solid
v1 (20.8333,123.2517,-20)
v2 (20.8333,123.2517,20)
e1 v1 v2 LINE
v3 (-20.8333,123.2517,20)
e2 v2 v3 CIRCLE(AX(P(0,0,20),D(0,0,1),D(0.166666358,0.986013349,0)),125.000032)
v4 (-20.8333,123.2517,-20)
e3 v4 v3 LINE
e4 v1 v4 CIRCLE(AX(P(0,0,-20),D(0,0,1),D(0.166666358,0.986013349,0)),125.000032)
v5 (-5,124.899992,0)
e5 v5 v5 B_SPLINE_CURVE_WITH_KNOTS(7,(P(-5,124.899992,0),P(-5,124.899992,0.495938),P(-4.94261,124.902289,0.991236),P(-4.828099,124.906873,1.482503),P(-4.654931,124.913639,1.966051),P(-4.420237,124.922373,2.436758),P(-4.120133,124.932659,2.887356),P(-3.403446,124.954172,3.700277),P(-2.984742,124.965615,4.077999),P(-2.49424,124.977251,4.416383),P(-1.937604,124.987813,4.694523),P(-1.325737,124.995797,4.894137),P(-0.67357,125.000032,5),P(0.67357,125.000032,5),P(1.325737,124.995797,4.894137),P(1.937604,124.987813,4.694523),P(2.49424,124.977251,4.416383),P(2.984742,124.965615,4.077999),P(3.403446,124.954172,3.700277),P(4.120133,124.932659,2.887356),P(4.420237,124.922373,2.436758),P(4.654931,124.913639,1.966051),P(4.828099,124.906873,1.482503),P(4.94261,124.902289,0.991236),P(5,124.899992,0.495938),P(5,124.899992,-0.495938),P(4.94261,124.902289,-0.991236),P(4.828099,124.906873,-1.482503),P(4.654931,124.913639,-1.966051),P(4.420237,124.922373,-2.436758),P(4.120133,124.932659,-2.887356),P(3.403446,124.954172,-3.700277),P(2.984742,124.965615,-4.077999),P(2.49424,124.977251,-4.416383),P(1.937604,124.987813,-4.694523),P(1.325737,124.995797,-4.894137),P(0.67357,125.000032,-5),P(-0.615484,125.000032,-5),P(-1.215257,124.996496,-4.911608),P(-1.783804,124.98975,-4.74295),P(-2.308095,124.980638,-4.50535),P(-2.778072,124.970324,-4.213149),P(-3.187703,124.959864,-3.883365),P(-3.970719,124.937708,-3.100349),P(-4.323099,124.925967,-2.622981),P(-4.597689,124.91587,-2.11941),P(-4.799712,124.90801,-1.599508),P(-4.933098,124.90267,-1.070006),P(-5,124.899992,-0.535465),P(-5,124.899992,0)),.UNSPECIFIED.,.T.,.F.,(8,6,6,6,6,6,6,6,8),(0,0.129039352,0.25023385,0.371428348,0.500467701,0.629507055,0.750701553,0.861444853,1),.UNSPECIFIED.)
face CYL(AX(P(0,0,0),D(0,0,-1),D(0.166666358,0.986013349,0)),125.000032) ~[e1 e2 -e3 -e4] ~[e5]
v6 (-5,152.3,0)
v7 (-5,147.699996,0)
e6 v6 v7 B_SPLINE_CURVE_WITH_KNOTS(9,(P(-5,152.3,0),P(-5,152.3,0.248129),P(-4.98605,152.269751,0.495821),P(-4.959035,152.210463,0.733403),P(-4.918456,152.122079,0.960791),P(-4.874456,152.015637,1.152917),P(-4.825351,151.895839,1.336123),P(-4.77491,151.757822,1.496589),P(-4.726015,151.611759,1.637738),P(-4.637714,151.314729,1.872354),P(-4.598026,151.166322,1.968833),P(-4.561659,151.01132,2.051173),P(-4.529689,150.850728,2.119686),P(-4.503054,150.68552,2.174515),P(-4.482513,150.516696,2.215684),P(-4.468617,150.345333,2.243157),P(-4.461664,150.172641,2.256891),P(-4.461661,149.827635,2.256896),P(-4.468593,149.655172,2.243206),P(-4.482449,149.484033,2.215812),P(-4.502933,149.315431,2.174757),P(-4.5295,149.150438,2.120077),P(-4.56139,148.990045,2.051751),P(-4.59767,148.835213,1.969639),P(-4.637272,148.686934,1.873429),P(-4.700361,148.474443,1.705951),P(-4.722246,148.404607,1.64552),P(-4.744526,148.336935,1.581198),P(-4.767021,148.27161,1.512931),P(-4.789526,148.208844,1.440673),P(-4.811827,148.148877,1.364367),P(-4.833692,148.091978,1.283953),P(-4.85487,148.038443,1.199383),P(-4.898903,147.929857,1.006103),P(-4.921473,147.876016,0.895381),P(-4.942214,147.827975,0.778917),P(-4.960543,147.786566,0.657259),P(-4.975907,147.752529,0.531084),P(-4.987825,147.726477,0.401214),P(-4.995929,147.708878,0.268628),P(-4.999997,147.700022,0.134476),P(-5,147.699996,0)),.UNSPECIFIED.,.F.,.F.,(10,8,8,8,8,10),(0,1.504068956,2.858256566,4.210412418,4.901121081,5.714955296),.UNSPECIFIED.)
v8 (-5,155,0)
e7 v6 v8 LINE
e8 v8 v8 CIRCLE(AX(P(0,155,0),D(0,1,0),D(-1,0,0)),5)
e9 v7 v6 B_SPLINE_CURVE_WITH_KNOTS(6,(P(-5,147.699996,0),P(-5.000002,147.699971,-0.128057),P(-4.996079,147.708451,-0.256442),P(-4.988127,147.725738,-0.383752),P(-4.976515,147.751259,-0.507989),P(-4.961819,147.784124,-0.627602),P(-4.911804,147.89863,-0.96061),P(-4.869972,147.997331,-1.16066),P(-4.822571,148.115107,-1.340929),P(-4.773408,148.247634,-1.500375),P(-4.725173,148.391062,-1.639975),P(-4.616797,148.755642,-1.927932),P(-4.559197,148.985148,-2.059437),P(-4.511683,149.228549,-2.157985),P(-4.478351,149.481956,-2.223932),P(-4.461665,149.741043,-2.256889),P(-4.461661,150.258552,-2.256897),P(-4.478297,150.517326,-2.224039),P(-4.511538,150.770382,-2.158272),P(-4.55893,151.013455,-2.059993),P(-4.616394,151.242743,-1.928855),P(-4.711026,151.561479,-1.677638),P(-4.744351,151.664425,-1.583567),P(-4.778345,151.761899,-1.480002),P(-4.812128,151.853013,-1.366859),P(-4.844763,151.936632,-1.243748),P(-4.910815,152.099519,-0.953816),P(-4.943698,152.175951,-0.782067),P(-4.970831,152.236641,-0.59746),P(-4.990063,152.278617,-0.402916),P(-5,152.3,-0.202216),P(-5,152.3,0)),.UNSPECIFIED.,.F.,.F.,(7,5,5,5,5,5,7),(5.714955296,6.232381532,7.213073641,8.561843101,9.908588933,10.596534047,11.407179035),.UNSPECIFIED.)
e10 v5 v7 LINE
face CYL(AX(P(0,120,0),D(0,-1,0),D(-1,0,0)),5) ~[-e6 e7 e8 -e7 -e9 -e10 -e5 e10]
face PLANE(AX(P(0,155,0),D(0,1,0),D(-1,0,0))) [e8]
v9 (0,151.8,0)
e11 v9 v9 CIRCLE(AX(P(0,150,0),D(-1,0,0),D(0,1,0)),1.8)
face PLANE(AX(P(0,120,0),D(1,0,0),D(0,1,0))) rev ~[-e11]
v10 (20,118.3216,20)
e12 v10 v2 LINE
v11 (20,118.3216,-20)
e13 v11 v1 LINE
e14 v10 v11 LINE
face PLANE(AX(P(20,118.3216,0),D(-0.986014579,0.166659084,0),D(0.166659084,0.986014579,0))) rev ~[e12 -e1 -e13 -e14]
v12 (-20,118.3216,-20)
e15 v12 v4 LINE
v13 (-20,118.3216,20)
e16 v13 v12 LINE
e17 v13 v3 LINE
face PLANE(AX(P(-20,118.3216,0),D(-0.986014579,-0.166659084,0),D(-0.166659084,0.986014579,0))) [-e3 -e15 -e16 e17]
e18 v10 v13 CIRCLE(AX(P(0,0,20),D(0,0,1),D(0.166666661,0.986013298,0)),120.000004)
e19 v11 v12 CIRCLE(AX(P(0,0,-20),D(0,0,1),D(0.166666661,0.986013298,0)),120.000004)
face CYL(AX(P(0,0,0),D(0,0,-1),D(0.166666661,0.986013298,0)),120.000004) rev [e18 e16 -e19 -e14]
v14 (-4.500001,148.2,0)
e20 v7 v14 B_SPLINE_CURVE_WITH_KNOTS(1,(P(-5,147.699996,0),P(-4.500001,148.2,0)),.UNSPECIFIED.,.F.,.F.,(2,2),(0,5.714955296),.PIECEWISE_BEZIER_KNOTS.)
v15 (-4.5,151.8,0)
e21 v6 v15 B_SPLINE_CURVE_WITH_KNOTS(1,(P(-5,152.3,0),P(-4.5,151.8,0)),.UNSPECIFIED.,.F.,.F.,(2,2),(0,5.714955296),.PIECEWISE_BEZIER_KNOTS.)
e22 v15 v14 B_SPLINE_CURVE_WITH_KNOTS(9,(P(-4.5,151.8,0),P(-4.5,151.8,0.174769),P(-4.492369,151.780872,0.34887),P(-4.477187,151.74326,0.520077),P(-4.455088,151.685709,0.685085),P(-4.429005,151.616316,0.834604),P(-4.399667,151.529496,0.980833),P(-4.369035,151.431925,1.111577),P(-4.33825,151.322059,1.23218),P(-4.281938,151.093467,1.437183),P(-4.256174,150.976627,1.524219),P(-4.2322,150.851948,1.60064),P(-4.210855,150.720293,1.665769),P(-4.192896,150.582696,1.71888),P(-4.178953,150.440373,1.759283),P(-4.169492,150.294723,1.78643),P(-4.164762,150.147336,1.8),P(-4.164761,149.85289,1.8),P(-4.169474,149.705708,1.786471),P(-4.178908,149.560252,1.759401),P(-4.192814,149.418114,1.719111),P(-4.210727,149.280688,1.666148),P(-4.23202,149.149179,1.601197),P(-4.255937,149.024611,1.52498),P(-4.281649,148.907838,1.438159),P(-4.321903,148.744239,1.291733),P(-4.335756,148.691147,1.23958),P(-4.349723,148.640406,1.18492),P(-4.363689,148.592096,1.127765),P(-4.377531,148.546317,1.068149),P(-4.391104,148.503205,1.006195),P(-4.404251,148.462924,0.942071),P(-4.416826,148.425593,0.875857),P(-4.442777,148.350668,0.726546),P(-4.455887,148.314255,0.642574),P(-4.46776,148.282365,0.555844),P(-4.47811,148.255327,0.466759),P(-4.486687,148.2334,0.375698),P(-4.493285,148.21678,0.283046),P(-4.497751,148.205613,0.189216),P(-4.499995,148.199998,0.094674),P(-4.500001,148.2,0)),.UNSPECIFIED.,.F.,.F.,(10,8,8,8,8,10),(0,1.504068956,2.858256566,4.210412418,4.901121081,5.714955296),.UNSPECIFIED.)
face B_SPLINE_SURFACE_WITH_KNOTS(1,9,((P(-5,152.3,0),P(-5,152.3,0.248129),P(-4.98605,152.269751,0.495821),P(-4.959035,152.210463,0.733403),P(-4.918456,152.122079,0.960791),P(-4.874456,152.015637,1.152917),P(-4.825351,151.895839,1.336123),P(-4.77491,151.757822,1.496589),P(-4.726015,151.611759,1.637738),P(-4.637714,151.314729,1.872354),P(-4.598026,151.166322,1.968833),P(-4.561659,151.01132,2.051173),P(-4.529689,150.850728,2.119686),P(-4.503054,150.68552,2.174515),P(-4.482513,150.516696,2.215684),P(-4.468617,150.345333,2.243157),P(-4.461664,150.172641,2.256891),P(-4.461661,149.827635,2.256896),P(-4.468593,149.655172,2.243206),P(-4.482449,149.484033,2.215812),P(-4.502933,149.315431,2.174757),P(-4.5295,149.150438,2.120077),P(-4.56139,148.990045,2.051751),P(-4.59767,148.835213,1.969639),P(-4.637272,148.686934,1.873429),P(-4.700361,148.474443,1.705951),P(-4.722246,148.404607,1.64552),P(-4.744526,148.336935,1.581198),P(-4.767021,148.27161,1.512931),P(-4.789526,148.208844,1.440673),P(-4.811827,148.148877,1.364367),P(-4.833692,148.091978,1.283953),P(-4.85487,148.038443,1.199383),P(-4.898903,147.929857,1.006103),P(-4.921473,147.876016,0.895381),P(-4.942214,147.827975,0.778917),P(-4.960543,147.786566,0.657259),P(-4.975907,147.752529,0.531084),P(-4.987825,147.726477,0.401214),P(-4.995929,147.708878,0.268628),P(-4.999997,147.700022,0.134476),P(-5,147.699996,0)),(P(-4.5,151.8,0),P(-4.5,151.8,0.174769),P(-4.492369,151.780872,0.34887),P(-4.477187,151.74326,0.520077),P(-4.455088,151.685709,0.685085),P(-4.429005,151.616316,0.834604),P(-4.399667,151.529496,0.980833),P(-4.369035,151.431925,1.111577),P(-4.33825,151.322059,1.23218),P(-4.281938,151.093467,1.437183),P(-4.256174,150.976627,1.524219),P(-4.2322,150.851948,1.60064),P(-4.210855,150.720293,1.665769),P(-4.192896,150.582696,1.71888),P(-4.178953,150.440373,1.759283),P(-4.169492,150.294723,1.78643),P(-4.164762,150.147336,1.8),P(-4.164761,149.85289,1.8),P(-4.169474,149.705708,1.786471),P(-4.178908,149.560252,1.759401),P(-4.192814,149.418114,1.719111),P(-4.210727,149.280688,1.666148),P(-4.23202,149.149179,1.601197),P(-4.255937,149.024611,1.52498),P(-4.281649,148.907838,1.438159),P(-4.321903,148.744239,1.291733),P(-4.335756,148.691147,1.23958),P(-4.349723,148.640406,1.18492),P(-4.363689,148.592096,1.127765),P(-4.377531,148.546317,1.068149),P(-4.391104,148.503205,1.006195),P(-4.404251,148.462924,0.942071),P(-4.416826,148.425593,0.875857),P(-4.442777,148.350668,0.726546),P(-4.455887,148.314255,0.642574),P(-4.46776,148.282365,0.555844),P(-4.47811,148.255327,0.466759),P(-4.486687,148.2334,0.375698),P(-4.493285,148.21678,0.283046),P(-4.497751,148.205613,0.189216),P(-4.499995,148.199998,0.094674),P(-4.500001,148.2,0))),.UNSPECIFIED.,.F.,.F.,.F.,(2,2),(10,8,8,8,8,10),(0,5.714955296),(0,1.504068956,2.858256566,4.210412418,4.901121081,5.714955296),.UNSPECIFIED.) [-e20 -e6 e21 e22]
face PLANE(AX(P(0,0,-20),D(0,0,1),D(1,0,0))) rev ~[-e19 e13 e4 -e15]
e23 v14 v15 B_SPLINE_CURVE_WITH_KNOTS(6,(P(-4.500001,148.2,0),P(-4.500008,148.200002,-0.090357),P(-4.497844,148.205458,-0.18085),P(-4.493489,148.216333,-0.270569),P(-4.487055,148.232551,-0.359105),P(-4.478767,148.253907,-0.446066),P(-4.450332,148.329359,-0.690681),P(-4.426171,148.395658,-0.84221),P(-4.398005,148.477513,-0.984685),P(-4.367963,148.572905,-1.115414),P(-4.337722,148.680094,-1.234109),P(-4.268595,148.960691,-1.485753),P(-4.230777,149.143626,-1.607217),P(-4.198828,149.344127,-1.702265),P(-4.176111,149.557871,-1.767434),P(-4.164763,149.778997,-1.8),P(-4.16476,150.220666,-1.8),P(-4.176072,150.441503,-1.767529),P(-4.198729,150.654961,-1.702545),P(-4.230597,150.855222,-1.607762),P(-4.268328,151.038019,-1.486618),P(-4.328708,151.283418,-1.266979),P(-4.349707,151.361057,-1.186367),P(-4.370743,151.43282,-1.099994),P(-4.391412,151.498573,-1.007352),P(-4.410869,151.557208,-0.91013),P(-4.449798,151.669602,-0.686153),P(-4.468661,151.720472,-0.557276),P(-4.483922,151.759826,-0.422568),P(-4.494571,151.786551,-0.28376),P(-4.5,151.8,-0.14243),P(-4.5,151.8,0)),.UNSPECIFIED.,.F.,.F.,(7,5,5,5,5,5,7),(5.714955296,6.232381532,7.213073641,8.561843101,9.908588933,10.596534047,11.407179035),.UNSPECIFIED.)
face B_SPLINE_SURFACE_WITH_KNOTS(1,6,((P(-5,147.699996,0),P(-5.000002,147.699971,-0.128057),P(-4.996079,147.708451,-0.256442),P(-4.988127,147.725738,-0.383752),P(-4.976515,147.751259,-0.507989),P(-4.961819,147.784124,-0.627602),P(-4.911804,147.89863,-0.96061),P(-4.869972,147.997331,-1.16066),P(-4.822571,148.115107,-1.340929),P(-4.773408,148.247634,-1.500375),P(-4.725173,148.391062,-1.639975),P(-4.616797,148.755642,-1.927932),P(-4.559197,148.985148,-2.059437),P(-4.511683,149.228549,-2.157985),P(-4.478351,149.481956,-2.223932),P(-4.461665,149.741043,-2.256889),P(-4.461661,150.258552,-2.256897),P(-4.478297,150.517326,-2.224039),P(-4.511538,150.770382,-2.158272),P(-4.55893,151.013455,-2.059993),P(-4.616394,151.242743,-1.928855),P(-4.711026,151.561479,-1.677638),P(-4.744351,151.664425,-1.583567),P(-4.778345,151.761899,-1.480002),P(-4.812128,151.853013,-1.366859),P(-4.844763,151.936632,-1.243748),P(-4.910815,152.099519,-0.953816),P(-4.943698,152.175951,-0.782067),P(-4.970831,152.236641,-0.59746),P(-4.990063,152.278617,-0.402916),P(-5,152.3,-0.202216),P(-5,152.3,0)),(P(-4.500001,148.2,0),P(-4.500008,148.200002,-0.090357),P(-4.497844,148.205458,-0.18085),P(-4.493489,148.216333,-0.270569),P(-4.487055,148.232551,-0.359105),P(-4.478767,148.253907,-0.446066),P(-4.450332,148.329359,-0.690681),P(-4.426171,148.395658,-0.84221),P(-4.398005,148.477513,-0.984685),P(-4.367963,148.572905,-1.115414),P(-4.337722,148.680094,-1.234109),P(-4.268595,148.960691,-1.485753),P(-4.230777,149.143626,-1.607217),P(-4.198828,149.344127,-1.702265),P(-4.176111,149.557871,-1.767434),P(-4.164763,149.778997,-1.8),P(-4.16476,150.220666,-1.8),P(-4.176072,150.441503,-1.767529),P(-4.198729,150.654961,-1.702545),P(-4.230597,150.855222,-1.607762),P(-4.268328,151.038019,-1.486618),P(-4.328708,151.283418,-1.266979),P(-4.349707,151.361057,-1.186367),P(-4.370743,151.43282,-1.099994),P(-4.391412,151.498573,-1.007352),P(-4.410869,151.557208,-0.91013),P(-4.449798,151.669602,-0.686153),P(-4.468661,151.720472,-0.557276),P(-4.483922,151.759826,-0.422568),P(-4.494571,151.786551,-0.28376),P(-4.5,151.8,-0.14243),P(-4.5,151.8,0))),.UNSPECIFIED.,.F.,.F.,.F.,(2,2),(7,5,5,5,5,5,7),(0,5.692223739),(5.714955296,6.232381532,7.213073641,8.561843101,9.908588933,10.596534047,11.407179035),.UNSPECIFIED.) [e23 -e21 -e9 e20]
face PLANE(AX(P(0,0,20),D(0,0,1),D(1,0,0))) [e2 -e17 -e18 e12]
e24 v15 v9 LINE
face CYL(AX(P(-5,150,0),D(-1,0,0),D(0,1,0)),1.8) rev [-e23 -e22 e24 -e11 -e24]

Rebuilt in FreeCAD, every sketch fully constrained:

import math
import FreeCAD as App
import Part
import Sketcher


def edges_at(feature, points):
    """Names of the edges that pass closest to the given points."""
    edges = feature.Shape.Edges
    near = lambda p: min(range(len(edges)), key=lambda i: edges[i].distToShape(Part.Vertex(*p))[0])
    return sorted({f"Edge{near(p) + 1}" for p in points})

doc = App.newDocument("Part")
body = doc.addObject("PartDesign::Body", "Body")

# Sketch on XY plane
sketch1 = doc.addObject("Sketcher::SketchObject", "Sketch")
body.addObject(sketch1)
sketch1.AttachmentSupport = (doc.XY_Plane, [""])
sketch1.MapMode = "FlatFace"
sketch1.addGeometry([
    Part.LineSegment(App.Vector(20, 118, 0), App.Vector(21, 123, 0)),
    Part.ArcOfCircle(Part.Circle(App.Vector(0, 0, 0), App.Vector(0, 0, 1), 125), math.radians(80.41), math.radians(99.59)),
    Part.LineSegment(App.Vector(-21, 123, 0), App.Vector(-20, 118, 0)),
    Part.ArcOfCircle(Part.Circle(App.Vector(0, 0, 0), App.Vector(0, 0, 1), 120), math.radians(80.41), math.radians(99.59)),
], False)
sketch1.addConstraint([
    Sketcher.Constraint("Coincident", 0, 2, 1, 1),
    Sketcher.Constraint("Coincident", 1, 2, 2, 1),
    Sketcher.Constraint("Coincident", 2, 2, 3, 2),
    Sketcher.Constraint("Coincident", 3, 1, 0, 1),
    Sketcher.Constraint("Coincident", 1, 3, -1, 1),
    Sketcher.Constraint("Coincident", 3, 3, -1, 1),
    Sketcher.Constraint("Horizontal", 0, 2, 1, 2),
    Sketcher.Constraint("Horizontal", 2, 2, 3, 1),
    Sketcher.Constraint("Radius", 1, 125.0),
    Sketcher.Constraint("Distance", 0, 5.0),
    Sketcher.Constraint("DistanceX", 2, 2, 3, 1, 40.0),
    Sketcher.Constraint("DistanceY", 2, 2, 1, 2, 4.93),
])
pad1 = doc.addObject("PartDesign::Pad", "Pad")
body.addObject(pad1)
pad1.Profile = sketch1
pad1.Length = 40
pad1.Midplane = True

# Sketch on XZ plane
sketch2 = doc.addObject("Sketcher::SketchObject", "Sketch001")
body.addObject(sketch2)
sketch2.AttachmentSupport = (doc.XZ_Plane, [""])
sketch2.MapMode = "FlatFace"
sketch2.AttachmentOffset = App.Placement(App.Vector(0, 0, -120), App.Rotation())
sketch2.addGeometry(Part.Circle(App.Vector(0, 0, 0), App.Vector(0, 0, 1), 5), False)
sketch2.addConstraint([
    Sketcher.Constraint("Coincident", 0, 3, -1, 1),
    Sketcher.Constraint("Diameter", 0, 10.0),
])
pad2 = doc.addObject("PartDesign::Pad", "Pad001")
body.addObject(pad2)
pad2.Profile = sketch2
pad2.Length = 35
pad2.Reversed = True

# Sketch on YZ plane
sketch3 = doc.addObject("Sketcher::SketchObject", "Sketch002")
body.addObject(sketch3)
sketch3.AttachmentSupport = (doc.YZ_Plane, [""])
sketch3.MapMode = "FlatFace"
sketch3.AttachmentOffset = App.Placement(App.Vector(0, 0, -5), App.Rotation())
sketch3.addGeometry(Part.Circle(App.Vector(150, 0, 0), App.Vector(0, 0, 1), 1.8), False)
sketch3.addConstraint([
    Sketcher.Constraint("PointOnObject", 0, 3, -1),
    Sketcher.Constraint("Diameter", 0, 3.6),
    Sketcher.Constraint("DistanceX", -1, 1, 0, 3, 150.0),
])
pocket1 = doc.addObject("PartDesign::Pocket", "Pocket")
body.addObject(pocket1)
pocket1.Profile = sketch3
pocket1.Length = 5
pocket1.Reversed = True
doc.recompute()

chamfer = doc.addObject("PartDesign::Chamfer", "Chamfer")
body.addObject(chamfer)
chamfer.Base = (pocket1, edges_at(pocket1, [(-4.665, 149.999, -1.8), (-4.665, 150.001, 1.8)]))
chamfer.Size = 0.5

doc.recompute()
